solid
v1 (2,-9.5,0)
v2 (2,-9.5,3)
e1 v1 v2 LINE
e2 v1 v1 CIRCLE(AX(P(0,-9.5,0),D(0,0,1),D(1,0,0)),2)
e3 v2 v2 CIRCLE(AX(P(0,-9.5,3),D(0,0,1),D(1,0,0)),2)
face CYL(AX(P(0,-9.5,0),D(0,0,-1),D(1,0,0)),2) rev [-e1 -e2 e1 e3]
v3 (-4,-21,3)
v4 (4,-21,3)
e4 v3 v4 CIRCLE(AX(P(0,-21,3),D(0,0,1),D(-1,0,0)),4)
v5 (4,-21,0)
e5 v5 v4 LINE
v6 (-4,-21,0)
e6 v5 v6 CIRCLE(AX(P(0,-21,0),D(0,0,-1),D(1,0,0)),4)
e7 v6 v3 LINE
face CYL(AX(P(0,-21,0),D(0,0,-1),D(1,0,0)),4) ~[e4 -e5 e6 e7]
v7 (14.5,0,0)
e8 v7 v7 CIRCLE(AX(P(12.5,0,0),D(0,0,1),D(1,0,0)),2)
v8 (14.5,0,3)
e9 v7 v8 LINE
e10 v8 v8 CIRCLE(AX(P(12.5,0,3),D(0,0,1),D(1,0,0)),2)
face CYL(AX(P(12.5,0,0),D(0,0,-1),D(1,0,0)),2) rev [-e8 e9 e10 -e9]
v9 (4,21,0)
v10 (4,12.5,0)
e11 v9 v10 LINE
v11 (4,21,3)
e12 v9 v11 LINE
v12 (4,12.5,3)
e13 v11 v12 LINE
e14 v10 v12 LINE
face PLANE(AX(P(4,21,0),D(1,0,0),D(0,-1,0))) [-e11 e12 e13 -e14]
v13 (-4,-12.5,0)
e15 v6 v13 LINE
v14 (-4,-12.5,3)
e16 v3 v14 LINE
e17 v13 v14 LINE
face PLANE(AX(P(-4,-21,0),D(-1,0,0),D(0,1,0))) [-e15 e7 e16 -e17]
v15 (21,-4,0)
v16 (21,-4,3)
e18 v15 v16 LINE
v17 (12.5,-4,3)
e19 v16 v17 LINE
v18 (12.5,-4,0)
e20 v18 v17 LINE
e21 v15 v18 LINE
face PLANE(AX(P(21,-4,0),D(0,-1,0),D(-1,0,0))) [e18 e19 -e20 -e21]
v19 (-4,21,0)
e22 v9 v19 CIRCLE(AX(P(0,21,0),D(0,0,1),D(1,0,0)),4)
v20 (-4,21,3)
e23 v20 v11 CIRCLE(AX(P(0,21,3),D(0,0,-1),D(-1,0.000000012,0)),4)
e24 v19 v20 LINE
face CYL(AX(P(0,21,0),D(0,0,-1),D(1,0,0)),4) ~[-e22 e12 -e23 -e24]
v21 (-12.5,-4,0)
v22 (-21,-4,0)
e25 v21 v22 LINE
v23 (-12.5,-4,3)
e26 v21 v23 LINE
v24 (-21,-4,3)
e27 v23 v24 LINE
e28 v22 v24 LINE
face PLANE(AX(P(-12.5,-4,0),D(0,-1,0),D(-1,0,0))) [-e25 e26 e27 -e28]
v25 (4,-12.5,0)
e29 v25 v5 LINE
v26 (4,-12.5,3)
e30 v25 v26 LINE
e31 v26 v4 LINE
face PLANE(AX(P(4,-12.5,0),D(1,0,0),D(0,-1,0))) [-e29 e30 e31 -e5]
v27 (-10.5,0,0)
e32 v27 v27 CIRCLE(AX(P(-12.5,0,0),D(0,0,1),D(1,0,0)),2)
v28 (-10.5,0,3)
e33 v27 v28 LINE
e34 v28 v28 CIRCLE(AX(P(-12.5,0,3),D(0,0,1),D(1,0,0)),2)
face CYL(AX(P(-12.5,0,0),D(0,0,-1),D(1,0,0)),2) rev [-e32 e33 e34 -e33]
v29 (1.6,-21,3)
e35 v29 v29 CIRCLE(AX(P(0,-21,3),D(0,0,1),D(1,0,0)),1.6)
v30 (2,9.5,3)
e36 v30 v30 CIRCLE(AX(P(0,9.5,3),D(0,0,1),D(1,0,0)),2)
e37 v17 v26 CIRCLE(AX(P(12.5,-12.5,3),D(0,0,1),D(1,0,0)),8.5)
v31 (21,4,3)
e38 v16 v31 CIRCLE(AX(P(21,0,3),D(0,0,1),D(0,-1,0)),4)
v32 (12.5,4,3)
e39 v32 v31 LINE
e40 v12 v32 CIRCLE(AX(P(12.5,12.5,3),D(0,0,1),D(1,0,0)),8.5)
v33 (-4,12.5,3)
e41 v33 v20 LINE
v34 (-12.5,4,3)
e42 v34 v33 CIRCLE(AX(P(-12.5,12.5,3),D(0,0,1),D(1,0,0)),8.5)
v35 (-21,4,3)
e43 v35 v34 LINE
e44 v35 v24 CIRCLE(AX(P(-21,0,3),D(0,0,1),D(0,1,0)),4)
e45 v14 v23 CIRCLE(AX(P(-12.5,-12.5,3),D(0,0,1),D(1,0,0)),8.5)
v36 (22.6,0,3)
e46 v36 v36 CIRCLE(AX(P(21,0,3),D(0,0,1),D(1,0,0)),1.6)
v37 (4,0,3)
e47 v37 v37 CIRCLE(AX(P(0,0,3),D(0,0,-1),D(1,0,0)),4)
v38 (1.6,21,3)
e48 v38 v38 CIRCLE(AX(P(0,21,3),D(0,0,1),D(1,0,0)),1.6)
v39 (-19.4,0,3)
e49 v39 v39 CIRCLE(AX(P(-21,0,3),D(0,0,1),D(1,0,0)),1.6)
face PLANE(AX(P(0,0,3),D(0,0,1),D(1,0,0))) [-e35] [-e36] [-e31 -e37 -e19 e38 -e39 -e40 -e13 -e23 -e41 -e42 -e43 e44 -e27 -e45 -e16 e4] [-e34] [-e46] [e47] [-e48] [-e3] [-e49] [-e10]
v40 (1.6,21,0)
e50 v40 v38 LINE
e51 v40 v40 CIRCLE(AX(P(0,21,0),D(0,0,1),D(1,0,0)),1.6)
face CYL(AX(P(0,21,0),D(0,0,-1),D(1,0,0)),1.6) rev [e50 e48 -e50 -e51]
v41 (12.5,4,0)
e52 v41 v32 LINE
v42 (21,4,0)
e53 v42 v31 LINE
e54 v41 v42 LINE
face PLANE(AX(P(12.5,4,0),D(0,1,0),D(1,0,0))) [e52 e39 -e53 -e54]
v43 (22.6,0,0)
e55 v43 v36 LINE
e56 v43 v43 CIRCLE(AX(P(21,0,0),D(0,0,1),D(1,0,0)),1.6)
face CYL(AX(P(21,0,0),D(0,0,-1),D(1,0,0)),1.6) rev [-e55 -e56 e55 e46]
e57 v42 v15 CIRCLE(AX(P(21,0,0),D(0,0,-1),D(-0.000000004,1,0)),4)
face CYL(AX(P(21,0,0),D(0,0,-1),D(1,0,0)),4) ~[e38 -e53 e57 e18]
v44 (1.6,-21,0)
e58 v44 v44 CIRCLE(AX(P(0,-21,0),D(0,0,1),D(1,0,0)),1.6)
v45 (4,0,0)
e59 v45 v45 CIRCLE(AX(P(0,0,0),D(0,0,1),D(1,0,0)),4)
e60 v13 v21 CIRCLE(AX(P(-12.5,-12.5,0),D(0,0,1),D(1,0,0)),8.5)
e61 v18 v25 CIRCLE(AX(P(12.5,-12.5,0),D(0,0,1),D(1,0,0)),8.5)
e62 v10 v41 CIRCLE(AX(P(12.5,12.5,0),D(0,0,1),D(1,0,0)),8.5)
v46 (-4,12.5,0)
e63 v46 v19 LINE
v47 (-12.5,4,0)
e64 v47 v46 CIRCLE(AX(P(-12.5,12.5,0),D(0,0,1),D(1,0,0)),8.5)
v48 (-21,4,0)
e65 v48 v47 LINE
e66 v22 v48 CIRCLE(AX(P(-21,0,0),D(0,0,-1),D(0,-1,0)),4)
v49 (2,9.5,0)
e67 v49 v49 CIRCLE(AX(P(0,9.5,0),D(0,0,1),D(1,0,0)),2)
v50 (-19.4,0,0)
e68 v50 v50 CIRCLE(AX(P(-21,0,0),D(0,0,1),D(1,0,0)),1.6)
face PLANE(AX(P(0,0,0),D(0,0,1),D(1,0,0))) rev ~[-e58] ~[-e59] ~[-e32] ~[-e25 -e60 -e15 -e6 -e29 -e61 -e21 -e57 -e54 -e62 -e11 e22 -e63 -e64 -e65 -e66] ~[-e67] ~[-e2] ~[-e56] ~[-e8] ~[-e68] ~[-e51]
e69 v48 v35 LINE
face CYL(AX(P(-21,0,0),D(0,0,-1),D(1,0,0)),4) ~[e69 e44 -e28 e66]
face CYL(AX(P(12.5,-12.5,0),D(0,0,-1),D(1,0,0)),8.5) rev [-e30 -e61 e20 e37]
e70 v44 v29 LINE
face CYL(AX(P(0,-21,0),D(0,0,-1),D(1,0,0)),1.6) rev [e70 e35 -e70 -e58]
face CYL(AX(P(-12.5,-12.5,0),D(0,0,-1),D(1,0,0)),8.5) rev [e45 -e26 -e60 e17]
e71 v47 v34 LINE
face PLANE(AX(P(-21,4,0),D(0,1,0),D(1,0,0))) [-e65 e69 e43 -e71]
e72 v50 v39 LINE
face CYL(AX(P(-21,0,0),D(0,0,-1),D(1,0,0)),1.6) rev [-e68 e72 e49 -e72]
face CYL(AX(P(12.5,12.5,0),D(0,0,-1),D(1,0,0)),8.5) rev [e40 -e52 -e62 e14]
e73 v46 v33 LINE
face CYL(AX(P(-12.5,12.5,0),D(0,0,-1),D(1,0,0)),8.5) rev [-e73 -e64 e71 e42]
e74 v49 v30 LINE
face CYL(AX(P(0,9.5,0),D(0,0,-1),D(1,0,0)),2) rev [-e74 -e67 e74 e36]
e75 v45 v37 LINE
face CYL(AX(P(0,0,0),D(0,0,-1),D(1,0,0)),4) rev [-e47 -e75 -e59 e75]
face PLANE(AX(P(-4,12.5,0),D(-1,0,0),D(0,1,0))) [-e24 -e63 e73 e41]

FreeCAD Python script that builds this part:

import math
import FreeCAD as App
import Part
import Sketcher
from FreeCAD import Vector
Q = App.Units.Quantity

doc = App.newDocument("Part")
body = doc.addObject("PartDesign::Body", "Body")

sketch1 = body.newObject("Sketcher::SketchObject", "Sketch")
sketch1.AttachmentSupport = (doc.getObject("XY_Plane"), [""])
sketch1.MapMode = "FlatFace"
sketch1.addGeometry([
    Part.ArcOfCircle(Part.Circle(Vector(0, 21, 0), Vector(0, 0, 1), 4), math.radians(0), math.radians(180)),
    Part.LineSegment(Vector(-4, 21, 0), Vector(-4, 12.5, 0)),
    Part.ArcOfCircle(Part.Circle(Vector(-12.5, 12.5, 0), Vector(0, 0, 1), 8.5), math.radians(-90), math.radians(0)),
    Part.LineSegment(Vector(-12.5, 4, 0), Vector(-21, 4, 0)),
    Part.ArcOfCircle(Part.Circle(Vector(-21, 0, 0), Vector(0, 0, 1), 4), math.radians(90), math.radians(270)),
    Part.LineSegment(Vector(-21, -4, 0), Vector(-12.5, -4, 0)),
    Part.ArcOfCircle(Part.Circle(Vector(-12.5, -12.5, 0), Vector(0, 0, 1), 8.5), math.radians(0), math.radians(90)),
    Part.LineSegment(Vector(-4, -12.5, 0), Vector(-4, -21, 0)),
    Part.ArcOfCircle(Part.Circle(Vector(0, -21, 0), Vector(0, 0, 1), 4), math.radians(180), math.radians(360)),
    Part.LineSegment(Vector(4, -21, 0), Vector(4, -12.5, 0)),
    Part.ArcOfCircle(Part.Circle(Vector(12.5, -12.5, 0), Vector(0, 0, 1), 8.5), math.radians(90), math.radians(180)),
    Part.LineSegment(Vector(12.5, -4, 0), Vector(21, -4, 0)),
    Part.ArcOfCircle(Part.Circle(Vector(21, 0, 0), Vector(0, 0, 1), 4), math.radians(-90), math.radians(90)),
    Part.LineSegment(Vector(21, 4, 0), Vector(12.5, 4, 0)),
    Part.ArcOfCircle(Part.Circle(Vector(12.5, 12.5, 0), Vector(0, 0, 1), 8.5), math.radians(180), math.radians(270)),
    Part.LineSegment(Vector(4, 12.5, 0), Vector(4, 21, 0)),
    Part.Circle(Vector(0, 21, 0), Vector(0, 0, 1), 1.6),
    Part.Circle(Vector(0, 9.5, 0), Vector(0, 0, 1), 2),
    Part.Circle(Vector(0, 0, 0), Vector(0, 0, 1), 4),
    Part.Circle(Vector(12.5, 0, 0), Vector(0, 0, 1), 2),
    Part.Circle(Vector(-12.5, 0, 0), Vector(0, 0, 1), 2),
    Part.Circle(Vector(21, 0, 0), Vector(0, 0, 1), 1.6),
    Part.Circle(Vector(-21, 0, 0), Vector(0, 0, 1), 1.6),
    Part.Circle(Vector(0, -9.5, 0), Vector(0, 0, 1), 2),
    Part.Circle(Vector(0, -21, 0), Vector(0, 0, 1), 1.6),
], False)
sketch1.addConstraint([
    Sketcher.Constraint("Tangent", 0, 2, 1, 1),
    Sketcher.Constraint("Tangent", 1, 2, 2, 2),
    Sketcher.Constraint("Tangent", 2, 1, 3, 1),
    Sketcher.Constraint("Tangent", 3, 2, 4, 1),
    Sketcher.Constraint("Tangent", 4, 2, 5, 1),
    Sketcher.Constraint("Tangent", 5, 2, 6, 2),
    Sketcher.Constraint("Tangent", 6, 1, 7, 1),
    Sketcher.Constraint("Tangent", 7, 2, 8, 1),
    Sketcher.Constraint("Tangent", 8, 2, 9, 1),
    Sketcher.Constraint("Tangent", 9, 2, 10, 2),
    Sketcher.Constraint("Tangent", 10, 1, 11, 1),
    Sketcher.Constraint("Tangent", 11, 2, 12, 1),
    Sketcher.Constraint("Tangent", 12, 2, 13, 1),
    Sketcher.Constraint("Tangent", 13, 2, 14, 2),
    Sketcher.Constraint("Tangent", 14, 1, 15, 1),
    Sketcher.Constraint("Tangent", 15, 2, 0, 1),
    Sketcher.Constraint("Vertical", 1),
    Sketcher.Constraint("Horizontal", 3),
    Sketcher.Constraint("Horizontal", 5),
    Sketcher.Constraint("Vertical", 7),
    Sketcher.Constraint("Vertical", 9),
    Sketcher.Constraint("Horizontal", 11),
    Sketcher.Constraint("Horizontal", 13),
    Sketcher.Constraint("Vertical", 15),
    Sketcher.Constraint("Coincident", 18, 3, -1, 1),
    Sketcher.Constraint("Coincident", 16, 3, 0, 3),
    Sketcher.Constraint("Coincident", 21, 3, 12, 3),
    Sketcher.Constraint("Coincident", 22, 3, 4, 3),
    Sketcher.Constraint("Coincident", 24, 3, 8, 3),
    Sketcher.Constraint("Equal", 0, 4),
    Sketcher.Constraint("Equal", 2, 6),
    Sketcher.Constraint("Equal", 4, 8),
    Sketcher.Constraint("Equal", 6, 10),
    Sketcher.Constraint("Equal", 8, 12),
    Sketcher.Constraint("Equal", 10, 14),
    Sketcher.Constraint("Equal", 12, 18),
    Sketcher.Constraint("Equal", 17, 19),
    Sketcher.Constraint("Equal", 19, 20),
    Sketcher.Constraint("Equal", 16, 21),
    Sketcher.Constraint("Equal", 21, 22),
    Sketcher.Constraint("Equal", 20, 23),
    Sketcher.Constraint("Equal", 22, 24),
    Sketcher.Constraint("Symmetric", 0, 3, 8, 3, -1, 1),
    Sketcher.Constraint("Symmetric", 4, 3, 12, 3, -1, 1),
    Sketcher.Constraint("Symmetric", 19, 3, 20, 3, -1, 1),
    Sketcher.Constraint("Symmetric", 17, 3, 23, 3, -1, 1),
    Sketcher.Constraint("Symmetric", 6, 3, 10, 3, -2),
    Sketcher.Constraint("PointOnObject", 17, 3, -2),
    Sketcher.Constraint("PointOnObject", 19, 3, -1),
    Sketcher.Constraint("Vertical", 14, 3, 19, 3),
    Sketcher.Constraint("Equal", 13, 1),
    Sketcher.Constraint("Diameter", 17, Q("4 mm")),
    Sketcher.Constraint("Diameter", 18, Q("8 mm")),
    Sketcher.Constraint("Diameter", 16, Q("3.2 mm")),
    Sketcher.Constraint("Radius", 2, Q("8.5 mm")),
    Sketcher.Constraint("DistanceY", 8, 3, 0, 3, Q("42 mm")),
    Sketcher.Constraint("DistanceY", 17, 3, 2, 3, Q("3 mm")),
])
pad1 = body.newObject("PartDesign::Pad", "Pad")
pad1.Profile = sketch1
pad1.Length = 3

doc.recompute()
